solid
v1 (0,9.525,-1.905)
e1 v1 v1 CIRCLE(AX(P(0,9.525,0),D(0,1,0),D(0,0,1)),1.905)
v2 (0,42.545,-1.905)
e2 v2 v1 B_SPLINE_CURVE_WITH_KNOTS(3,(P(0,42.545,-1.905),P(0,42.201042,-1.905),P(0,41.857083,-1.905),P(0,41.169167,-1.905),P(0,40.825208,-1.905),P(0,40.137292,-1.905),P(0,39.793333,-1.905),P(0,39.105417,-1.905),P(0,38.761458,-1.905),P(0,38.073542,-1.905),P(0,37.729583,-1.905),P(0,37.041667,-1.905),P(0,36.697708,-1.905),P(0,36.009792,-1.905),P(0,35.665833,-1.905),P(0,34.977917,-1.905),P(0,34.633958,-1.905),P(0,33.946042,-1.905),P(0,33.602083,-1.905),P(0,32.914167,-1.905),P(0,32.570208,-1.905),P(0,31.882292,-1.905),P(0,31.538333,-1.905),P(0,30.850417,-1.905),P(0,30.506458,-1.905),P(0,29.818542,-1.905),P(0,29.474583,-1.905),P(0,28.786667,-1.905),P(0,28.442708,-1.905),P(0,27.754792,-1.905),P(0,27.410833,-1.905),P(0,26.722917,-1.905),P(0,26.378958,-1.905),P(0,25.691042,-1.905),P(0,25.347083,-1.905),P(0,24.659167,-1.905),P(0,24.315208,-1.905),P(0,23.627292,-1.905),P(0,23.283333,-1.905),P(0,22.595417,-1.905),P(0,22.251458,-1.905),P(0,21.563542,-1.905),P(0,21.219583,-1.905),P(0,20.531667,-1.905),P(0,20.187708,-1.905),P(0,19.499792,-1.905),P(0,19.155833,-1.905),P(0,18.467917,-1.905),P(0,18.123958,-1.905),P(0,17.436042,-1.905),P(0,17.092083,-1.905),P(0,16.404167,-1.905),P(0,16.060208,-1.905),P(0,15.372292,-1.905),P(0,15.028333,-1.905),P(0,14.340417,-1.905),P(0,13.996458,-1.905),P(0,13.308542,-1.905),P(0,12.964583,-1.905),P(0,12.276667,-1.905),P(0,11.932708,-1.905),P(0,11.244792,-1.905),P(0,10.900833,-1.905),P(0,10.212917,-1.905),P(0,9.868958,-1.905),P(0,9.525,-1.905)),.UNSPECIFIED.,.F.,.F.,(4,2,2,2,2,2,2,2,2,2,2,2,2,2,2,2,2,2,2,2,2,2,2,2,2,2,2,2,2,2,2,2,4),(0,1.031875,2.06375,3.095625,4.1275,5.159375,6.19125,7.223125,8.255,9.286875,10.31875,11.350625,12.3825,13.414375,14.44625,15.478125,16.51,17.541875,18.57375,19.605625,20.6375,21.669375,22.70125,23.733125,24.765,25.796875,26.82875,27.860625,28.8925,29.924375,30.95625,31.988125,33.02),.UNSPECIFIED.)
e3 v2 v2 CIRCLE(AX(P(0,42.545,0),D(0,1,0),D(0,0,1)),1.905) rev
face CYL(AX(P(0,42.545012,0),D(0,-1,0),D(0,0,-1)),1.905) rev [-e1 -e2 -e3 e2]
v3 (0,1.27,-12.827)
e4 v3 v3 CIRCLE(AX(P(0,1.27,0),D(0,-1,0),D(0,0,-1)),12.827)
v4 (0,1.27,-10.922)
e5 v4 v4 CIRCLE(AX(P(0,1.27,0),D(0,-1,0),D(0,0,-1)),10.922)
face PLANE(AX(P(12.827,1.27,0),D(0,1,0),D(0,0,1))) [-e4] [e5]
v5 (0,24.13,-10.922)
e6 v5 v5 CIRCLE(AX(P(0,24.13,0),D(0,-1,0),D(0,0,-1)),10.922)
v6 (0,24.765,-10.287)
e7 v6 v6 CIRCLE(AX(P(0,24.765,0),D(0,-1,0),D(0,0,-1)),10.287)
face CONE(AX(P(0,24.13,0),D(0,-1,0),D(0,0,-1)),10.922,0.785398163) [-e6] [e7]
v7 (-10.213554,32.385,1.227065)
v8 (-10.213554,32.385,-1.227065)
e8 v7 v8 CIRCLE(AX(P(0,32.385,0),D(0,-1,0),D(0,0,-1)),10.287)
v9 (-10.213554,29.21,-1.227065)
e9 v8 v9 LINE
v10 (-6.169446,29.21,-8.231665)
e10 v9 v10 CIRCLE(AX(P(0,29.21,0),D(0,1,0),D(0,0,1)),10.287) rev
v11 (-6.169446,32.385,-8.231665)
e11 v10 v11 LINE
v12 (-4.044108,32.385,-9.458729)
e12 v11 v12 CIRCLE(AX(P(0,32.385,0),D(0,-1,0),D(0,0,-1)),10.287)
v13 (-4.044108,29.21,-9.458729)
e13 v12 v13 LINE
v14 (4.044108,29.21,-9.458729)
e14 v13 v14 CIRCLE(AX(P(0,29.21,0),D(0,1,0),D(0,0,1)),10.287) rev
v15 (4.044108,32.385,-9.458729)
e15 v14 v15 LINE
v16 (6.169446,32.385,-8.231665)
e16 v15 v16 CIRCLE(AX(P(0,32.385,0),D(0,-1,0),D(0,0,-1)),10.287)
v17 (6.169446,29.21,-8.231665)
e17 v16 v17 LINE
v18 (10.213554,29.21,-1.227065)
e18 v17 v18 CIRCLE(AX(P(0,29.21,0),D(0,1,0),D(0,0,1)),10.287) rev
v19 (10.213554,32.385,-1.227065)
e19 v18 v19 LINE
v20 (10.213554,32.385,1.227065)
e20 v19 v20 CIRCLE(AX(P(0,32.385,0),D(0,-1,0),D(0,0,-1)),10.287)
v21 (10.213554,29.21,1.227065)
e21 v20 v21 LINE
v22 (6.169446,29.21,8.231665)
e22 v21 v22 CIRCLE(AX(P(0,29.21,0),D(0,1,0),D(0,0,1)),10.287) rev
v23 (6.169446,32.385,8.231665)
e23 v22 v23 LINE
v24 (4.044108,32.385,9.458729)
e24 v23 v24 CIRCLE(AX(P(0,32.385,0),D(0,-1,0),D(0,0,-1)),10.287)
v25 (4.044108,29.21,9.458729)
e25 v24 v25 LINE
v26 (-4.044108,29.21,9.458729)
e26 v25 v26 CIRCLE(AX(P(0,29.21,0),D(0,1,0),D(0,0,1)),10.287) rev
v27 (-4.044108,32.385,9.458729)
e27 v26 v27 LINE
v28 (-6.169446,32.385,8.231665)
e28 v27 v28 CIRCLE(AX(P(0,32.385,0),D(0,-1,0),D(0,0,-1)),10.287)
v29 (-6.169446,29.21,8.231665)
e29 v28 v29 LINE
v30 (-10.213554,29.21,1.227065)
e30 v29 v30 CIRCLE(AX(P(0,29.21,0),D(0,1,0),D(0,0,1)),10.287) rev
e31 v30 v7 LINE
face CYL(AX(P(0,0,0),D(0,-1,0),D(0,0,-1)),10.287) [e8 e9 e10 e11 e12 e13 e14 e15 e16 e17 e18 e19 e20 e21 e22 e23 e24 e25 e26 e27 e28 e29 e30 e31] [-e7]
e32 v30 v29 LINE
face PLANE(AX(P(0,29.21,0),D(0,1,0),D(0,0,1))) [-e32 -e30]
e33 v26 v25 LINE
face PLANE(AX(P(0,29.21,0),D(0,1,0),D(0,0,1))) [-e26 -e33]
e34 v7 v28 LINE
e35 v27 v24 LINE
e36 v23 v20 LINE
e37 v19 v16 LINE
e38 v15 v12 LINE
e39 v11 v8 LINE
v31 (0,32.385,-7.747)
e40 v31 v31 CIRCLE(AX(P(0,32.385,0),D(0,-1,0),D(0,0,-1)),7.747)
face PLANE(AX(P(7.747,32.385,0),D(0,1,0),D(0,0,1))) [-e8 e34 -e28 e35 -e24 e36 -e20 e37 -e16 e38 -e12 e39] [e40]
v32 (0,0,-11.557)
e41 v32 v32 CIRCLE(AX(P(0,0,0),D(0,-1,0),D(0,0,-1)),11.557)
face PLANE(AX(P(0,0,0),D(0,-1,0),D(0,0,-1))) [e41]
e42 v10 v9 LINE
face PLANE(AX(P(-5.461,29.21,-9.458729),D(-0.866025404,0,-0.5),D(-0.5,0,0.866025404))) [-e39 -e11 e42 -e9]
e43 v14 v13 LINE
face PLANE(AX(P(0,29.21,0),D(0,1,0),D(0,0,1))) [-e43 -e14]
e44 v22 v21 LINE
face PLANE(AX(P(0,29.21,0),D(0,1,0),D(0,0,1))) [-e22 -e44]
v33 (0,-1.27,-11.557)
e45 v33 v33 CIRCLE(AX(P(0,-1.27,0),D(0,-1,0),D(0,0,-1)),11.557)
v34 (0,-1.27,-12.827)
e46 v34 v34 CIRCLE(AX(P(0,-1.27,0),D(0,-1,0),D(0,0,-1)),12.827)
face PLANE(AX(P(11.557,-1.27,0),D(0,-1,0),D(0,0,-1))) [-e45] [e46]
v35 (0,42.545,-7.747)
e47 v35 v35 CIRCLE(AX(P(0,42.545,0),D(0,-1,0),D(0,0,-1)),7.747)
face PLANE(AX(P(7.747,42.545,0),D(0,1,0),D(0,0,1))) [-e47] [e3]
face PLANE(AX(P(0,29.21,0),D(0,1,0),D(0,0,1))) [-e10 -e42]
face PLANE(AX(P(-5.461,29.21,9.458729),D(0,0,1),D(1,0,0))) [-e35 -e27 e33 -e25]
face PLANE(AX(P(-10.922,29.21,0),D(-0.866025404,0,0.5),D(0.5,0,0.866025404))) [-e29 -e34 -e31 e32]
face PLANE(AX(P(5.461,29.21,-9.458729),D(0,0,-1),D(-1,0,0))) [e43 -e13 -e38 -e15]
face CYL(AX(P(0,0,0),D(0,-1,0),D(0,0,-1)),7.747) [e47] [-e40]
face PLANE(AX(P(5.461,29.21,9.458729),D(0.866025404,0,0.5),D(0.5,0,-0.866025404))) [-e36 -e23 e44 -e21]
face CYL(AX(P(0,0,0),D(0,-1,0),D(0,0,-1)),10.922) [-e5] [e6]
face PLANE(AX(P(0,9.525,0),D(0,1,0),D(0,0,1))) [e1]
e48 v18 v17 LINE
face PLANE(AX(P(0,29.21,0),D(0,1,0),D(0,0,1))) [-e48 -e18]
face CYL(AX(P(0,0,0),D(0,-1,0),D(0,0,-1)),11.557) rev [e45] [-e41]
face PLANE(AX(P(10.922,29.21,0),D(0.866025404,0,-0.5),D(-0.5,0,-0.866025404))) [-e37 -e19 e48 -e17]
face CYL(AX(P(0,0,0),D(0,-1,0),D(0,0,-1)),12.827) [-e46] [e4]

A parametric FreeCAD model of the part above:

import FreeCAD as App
import Part
import Sketcher

V = App.Vector
Q = App.Units.Quantity

doc = App.newDocument("Part")
body = doc.addObject("PartDesign::Body", "Body")

# Sketch on XY plane
sketch1 = doc.addObject("Sketcher::SketchObject", "Sketch")
body.addObject(sketch1)
sketch1.AttachmentSupport = (doc.XY_Plane, [""])
sketch1.MapMode = "FlatFace"
sketch1.addGeometry([
    Part.LineSegment(V(0, 0, 0), V(11.6, 0, 0)),  # 0
    Part.LineSegment(V(11.6, 0, 0), V(11.6, -1.3, 0)),  # 1
    Part.LineSegment(V(11.6, -1.3, 0), V(12.8, -1.3, 0)),  # 2
    Part.LineSegment(V(12.8, -1.3, 0), V(12.8, 1.3, 0)),  # 3
    Part.LineSegment(V(12.8, 1.3, 0), V(10.9, 1.3, 0)),  # 4
    Part.LineSegment(V(10.9, 1.3, 0), V(10.9, 24.1, 0)),  # 5
    Part.LineSegment(V(10.9, 24.1, 0), V(10.3, 24.8, 0)),  # 6
    Part.LineSegment(V(10.3, 24.8, 0), V(10.3, 32.4, 0)),  # 7
    Part.LineSegment(V(10.3, 32.4, 0), V(7.7, 32.4, 0)),  # 8
    Part.LineSegment(V(7.7, 32.4, 0), V(7.7, 42.5, 0)),  # 9
    Part.LineSegment(V(7.7, 42.5, 0), V(0, 42.5, 0)),  # 10
    Part.LineSegment(V(0, 42.5, 0), V(0, 0, 0)),  # 11
], False)
sketch1.addConstraint([
    Sketcher.Constraint("Coincident", 0, 2, 1, 1),
    Sketcher.Constraint("Coincident", 1, 2, 2, 1),
    Sketcher.Constraint("Coincident", 2, 2, 3, 1),
    Sketcher.Constraint("Coincident", 3, 2, 4, 1),
    Sketcher.Constraint("Coincident", 4, 2, 5, 1),
    Sketcher.Constraint("Coincident", 5, 2, 6, 1),
    Sketcher.Constraint("Coincident", 6, 2, 7, 1),
    Sketcher.Constraint("Coincident", 7, 2, 8, 1),
    Sketcher.Constraint("Coincident", 8, 2, 9, 1),
    Sketcher.Constraint("Coincident", 9, 2, 10, 1),
    Sketcher.Constraint("Coincident", 10, 2, 11, 1),
    Sketcher.Constraint("Coincident", 11, 2, 0, 1),
    Sketcher.Constraint("Horizontal", 0),
    Sketcher.Constraint("Vertical", 1),
    Sketcher.Constraint("Horizontal", 2),
    Sketcher.Constraint("Vertical", 3),
    Sketcher.Constraint("Horizontal", 4),
    Sketcher.Constraint("Vertical", 5),
    Sketcher.Constraint("Vertical", 7),
    Sketcher.Constraint("Horizontal", 8),
    Sketcher.Constraint("Vertical", 9),
    Sketcher.Constraint("Horizontal", 10),
    Sketcher.Constraint("Vertical", 11),
    Sketcher.Constraint("Coincident", 11, 2, -1, 1),
    Sketcher.Constraint("Equal", 2, 1),
    Sketcher.Constraint("Equal", 8, 3),
    Sketcher.Constraint("DistanceX", 8, 2, 8, 1, Q("0.1 in")),
    Sketcher.Constraint("DistanceY", 5, 1, 5, 2, Q("0.9 in")),
    Sketcher.Constraint("DistanceY", 7, 1, 7, 2, Q("0.3 in")),
    Sketcher.Constraint("DistanceY", 9, 1, 9, 2, Q("0.4 in")),
    Sketcher.Constraint("Angle", 6, Q("135 deg")),
    Sketcher.Constraint("DistanceX", 2, 1, 2, 2, Q("0.05 in")),
    Sketcher.Constraint("DistanceX", 6, 2, 3, 2, Q("0.1 in")),
    Sketcher.Constraint("DistanceX", 0, 1, 0, 2, Q("0.455 in")),
    Sketcher.Constraint("DistanceX", 4, 2, 4, 1, Q("0.075 in")),
])
revolution = doc.addObject("PartDesign::Revolution", "Revolution")
body.addObject(revolution)
revolution.Profile = sketch1
revolution.ReferenceAxis = (sketch1, ["V_Axis"])
revolution.Angle = 360

# Sketch on XZ plane
sketch2 = doc.addObject("Sketcher::SketchObject", "Sketch001")
body.addObject(sketch2)
sketch2.AttachmentSupport = (doc.XZ_Plane, [""])
sketch2.MapMode = "FlatFace"
sketch2.AttachmentOffset = App.Placement(V(0, 0, -1.275 * 25.4), App.Rotation())
sketch2.addGeometry([
    Part.Circle(V(0, 0, 0), V(0, 0, 1), 13),  # 0
    Part.LineSegment(V(-5, 9, 0), V(-11, 0, 0)),  # 1
    Part.LineSegment(V(-11, 0, 0), V(-5, -9, 0)),  # 2
    Part.LineSegment(V(-5, -9, 0), V(5, -9, 0)),  # 3
    Part.LineSegment(V(5, -9, 0), V(11, 0, 0)),  # 4
    Part.LineSegment(V(11, 0, 0), V(5, 9, 0)),  # 5
    Part.LineSegment(V(5, 9, 0), V(-5, 9, 0)),  # 6
], False)
sketch2.addConstraint([
    Sketcher.Constraint("Coincident", 1, 2, 2, 1),
    Sketcher.Constraint("Coincident", 2, 2, 3, 1),
    Sketcher.Constraint("Coincident", 3, 2, 4, 1),
    Sketcher.Constraint("Coincident", 4, 2, 5, 1),
    Sketcher.Constraint("Coincident", 5, 2, 6, 1),
    Sketcher.Constraint("Coincident", 6, 2, 1, 1),
    Sketcher.Constraint("Horizontal", 3),
    Sketcher.Constraint("Horizontal", 6),
    Sketcher.Constraint("Coincident", 0, 3, -1, 1),
    Sketcher.Constraint("Symmetric", 1, 2, 4, 2, -1, 1),
    Sketcher.Constraint("Symmetric", 2, 2, 5, 2, -1, 1),
    Sketcher.Constraint("PointOnObject", 1, 2, -1),
    Sketcher.Constraint("Parallel", 1, 4),
    Sketcher.Constraint("Vertical", 3, 2, 5, 2),
    Sketcher.Constraint("Diameter", 0, Q("1.01 in")),
    Sketcher.Constraint("Angle", 1, Q("-120 deg")),
    Sketcher.Constraint("DistanceX", 3, 1, 3, 2, Q("0.43 in")),
    Sketcher.Constraint("Distance", 1, Q("0.43 in")),
])
pocket1 = doc.addObject("PartDesign::Pocket", "Pocket")
body.addObject(pocket1)
pocket1.Profile = sketch2
pocket1.Length = Q("0.125 in")
pocket1.Reversed = True

# Sketch on XZ plane
sketch3 = doc.addObject("Sketcher::SketchObject", "Sketch002")
body.addObject(sketch3)
sketch3.AttachmentSupport = (doc.XZ_Plane, [""])
sketch3.MapMode = "FlatFace"
sketch3.AttachmentOffset = App.Placement(V(0, 0, -1.675 * 25.4), App.Rotation())
sketch3.addGeometry(Part.Circle(V(0, 0, 0), V(0, 0, 1), 1.9), False)
sketch3.addConstraint([
    Sketcher.Constraint("Coincident", 0, 3, -1, 1),
    Sketcher.Constraint("Diameter", 0, Q("0.15 in")),
])
pocket2 = doc.addObject("PartDesign::Pocket", "Pocket001")
body.addObject(pocket2)
pocket2.Profile = sketch3
pocket2.Type = "TwoLengths"
pocket2.Length = 48.421705
pocket2.Length2 = Q("1.3 in")

doc.recompute()
